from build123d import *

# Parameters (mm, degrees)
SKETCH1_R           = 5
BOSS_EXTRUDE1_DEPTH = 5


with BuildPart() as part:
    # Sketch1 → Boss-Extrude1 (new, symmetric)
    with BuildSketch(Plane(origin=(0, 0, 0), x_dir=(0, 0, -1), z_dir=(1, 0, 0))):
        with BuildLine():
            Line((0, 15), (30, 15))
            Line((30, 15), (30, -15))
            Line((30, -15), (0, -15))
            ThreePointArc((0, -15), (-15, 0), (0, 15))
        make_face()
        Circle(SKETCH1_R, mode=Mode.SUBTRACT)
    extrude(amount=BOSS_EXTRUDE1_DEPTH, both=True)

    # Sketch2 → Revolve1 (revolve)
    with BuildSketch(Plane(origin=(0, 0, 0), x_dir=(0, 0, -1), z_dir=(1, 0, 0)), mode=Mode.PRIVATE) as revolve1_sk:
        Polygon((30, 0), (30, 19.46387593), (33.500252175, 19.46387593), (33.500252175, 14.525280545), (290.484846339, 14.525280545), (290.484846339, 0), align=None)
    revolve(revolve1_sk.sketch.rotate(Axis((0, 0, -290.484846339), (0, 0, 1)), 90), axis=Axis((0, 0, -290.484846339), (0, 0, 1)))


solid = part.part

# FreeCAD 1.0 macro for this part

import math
import FreeCAD as App
import Part
import Sketcher

V = App.Vector

doc = App.newDocument("Part")
body = doc.addObject("PartDesign::Body", "Body")

# Sketch on YZ plane
sketch1 = body.newObject("Sketcher::SketchObject", "Sketch")
sketch1.AttachmentSupport = (doc.getObject("YZ_Plane"), [""])
sketch1.MapMode = "FlatFace"
sketch1.addGeometry(Part.LineSegment(V(15, -30, 0), V(15, 0, 0)), False)
sketch1.addGeometry(Part.ArcOfCircle(Part.Circle(V(0, 0, 0), V(0, 0, 1), 15), math.radians(0), math.radians(180)), False)
sketch1.addGeometry(Part.LineSegment(V(-15, 0, 0), V(-15, -30, 0)), False)
sketch1.addGeometry(Part.LineSegment(V(-15, -30, 0), V(15, -30, 0)), False)
sketch1.addGeometry(Part.Circle(V(0, 0, 0), V(0, 0, 1), 5), False)
sketch1.addConstraint(Sketcher.Constraint("Tangent", 0, 2, 1, 1))
sketch1.addConstraint(Sketcher.Constraint("Tangent", 1, 2, 2, 1))
sketch1.addConstraint(Sketcher.Constraint("Coincident", 2, 2, 3, 1))
sketch1.addConstraint(Sketcher.Constraint("Coincident", 3, 2, 0, 1))
sketch1.addConstraint(Sketcher.Constraint("Vertical", 0))
sketch1.addConstraint(Sketcher.Constraint("Vertical", 2))
sketch1.addConstraint(Sketcher.Constraint("Horizontal", 3))
sketch1.addConstraint(Sketcher.Constraint("Coincident", 1, 3, -1, 1))
sketch1.addConstraint(Sketcher.Constraint("Coincident", 4, 3, -1, 1))
sketch1.addConstraint(Sketcher.Constraint("Equal", 3, 0))
sketch1.addConstraint(Sketcher.Constraint("Diameter", 4, 10.0))
sketch1.addConstraint(Sketcher.Constraint("Radius", 1, 15.0))
pad1 = body.newObject("PartDesign::Pad", "Pad")
pad1.Profile = sketch1
pad1.Length = 10
pad1.Midplane = True

# Sketch on YZ plane
sketch2 = body.newObject("Sketcher::SketchObject", "Sketch001")
sketch2.AttachmentSupport = (doc.getObject("YZ_Plane"), [""])
sketch2.MapMode = "FlatFace"
sketch2.addGeometry(Part.LineSegment(V(19.5, -30, 0), V(0, -30, 0)), False)
sketch2.addGeometry(Part.LineSegment(V(0, -30, 0), V(0, -290.5, 0)), False)
sketch2.addGeometry(Part.LineSegment(V(0, -290.5, 0), V(14.5, -290.5, 0)), False)
sketch2.addGeometry(Part.LineSegment(V(14.5, -290.5, 0), V(14.5, -33.5, 0)), False)
sketch2.addGeometry(Part.LineSegment(V(14.5, -33.5, 0), V(19.5, -33.5, 0)), False)
sketch2.addGeometry(Part.LineSegment(V(19.5, -33.5, 0), V(19.5, -30, 0)), False)
sketch2.addConstraint(Sketcher.Constraint("Coincident", 0, 2, 1, 1))
sketch2.addConstraint(Sketcher.Constraint("Coincident", 1, 2, 2, 1))
sketch2.addConstraint(Sketcher.Constraint("Coincident", 2, 2, 3, 1))
sketch2.addConstraint(Sketcher.Constraint("Coincident", 3, 2, 4, 1))
sketch2.addConstraint(Sketcher.Constraint("Coincident", 4, 2, 5, 1))
sketch2.addConstraint(Sketcher.Constraint("Coincident", 5, 2, 0, 1))
sketch2.addConstraint(Sketcher.Constraint("Horizontal", 0))
sketch2.addConstraint(Sketcher.Constraint("Vertical", 1))
sketch2.addConstraint(Sketcher.Constraint("Horizontal", 2))
sketch2.addConstraint(Sketcher.Constraint("Vertical", 3))
sketch2.addConstraint(Sketcher.Constraint("Horizontal", 4))
sketch2.addConstraint(Sketcher.Constraint("Vertical", 5))
sketch2.addConstraint(Sketcher.Constraint("PointOnObject", 0, 2, -2))
sketch2.addConstraint(Sketcher.Constraint("DistanceY", 0, 2, -1, 1, 30.0))
sketch2.addConstraint(Sketcher.Constraint("DistanceX", 2, 1, 2, 2, 14.525281))
sketch2.addConstraint(Sketcher.Constraint("DistanceX", 0, 2, 0, 1, 19.463876))
sketch2.addConstraint(Sketcher.Constraint("DistanceY", 1, 2, 1, 1, 260.484846))
sketch2.addConstraint(Sketcher.Constraint("DistanceY", 3, 1, 3, 2, 256.984594))
revolution = body.newObject("PartDesign::Revolution", "Revolution")
revolution.Profile = sketch2
revolution.ReferenceAxis = (sketch2, ["V_Axis"])
revolution.Angle = 360

doc.recompute()
